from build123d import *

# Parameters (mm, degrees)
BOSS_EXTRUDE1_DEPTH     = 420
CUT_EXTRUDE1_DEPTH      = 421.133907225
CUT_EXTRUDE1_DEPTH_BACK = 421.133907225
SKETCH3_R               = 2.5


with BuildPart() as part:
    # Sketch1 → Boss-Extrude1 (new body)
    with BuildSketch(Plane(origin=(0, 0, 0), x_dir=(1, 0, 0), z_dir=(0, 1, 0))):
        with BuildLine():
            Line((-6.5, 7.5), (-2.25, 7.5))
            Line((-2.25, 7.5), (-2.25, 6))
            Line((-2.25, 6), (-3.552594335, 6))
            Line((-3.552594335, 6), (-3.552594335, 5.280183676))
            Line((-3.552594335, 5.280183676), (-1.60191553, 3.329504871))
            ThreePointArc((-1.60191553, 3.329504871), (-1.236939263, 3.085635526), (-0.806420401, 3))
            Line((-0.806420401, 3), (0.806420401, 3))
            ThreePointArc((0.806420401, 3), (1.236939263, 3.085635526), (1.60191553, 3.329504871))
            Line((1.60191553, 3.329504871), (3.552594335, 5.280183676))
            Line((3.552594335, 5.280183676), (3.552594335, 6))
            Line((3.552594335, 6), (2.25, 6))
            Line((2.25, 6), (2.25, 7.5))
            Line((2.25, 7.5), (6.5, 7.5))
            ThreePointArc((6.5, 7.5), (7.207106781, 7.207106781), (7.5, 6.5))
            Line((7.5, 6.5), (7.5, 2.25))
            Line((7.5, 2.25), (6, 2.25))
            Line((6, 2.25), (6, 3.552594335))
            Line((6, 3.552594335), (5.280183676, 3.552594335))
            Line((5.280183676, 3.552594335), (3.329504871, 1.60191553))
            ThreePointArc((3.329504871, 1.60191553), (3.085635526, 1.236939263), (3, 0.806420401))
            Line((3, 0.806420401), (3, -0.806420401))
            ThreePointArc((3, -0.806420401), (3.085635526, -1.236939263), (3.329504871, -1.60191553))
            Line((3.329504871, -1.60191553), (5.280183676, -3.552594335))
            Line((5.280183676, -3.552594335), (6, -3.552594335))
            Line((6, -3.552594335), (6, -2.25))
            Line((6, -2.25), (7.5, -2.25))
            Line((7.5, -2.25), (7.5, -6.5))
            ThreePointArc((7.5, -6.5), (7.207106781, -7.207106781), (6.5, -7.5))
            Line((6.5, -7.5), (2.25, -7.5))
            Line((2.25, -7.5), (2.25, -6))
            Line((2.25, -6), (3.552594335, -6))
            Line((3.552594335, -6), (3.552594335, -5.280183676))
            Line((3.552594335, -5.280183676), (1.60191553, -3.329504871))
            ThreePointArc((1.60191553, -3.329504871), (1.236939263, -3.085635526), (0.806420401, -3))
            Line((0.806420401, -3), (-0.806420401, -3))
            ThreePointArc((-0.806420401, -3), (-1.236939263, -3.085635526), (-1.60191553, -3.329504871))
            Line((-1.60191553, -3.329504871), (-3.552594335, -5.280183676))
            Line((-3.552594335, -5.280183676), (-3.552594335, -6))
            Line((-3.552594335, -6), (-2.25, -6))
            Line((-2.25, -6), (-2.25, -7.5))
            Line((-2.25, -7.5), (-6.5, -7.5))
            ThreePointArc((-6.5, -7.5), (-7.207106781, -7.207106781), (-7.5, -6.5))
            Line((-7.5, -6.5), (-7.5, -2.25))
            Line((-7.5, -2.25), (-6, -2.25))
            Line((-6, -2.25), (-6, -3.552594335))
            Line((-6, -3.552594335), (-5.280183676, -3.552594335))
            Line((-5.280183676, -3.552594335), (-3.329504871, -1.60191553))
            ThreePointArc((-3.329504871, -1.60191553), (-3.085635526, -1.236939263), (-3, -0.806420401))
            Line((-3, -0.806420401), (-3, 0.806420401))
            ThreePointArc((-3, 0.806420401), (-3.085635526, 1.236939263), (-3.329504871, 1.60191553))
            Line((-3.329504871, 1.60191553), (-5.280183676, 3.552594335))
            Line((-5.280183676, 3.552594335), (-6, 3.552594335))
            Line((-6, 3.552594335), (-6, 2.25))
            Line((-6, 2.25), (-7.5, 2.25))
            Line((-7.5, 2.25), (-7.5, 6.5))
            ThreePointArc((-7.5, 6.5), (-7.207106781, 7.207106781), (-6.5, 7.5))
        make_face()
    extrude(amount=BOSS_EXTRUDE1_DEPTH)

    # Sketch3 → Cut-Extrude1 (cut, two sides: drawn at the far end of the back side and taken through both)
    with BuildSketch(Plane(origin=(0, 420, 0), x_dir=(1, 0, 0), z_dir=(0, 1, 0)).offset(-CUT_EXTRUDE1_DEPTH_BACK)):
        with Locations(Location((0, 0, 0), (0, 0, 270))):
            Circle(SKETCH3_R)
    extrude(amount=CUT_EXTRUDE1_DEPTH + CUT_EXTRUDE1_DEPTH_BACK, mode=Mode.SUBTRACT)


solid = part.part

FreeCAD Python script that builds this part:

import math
import FreeCAD as App
import Part
import Sketcher

V = App.Vector
Q = App.Units.Quantity

doc = App.newDocument("Part")
params = doc.addObject("Spreadsheet::Sheet", "Params")
for row, (alias, value) in enumerate([
    ("sketch1_radius", "1 mm"),
    ("sketch1_width", "1.5 mm"),
    ("sketch1_width2", "4.25 mm"),
    ("pad1_length", "420 mm"),
    ("sketch2_diameter", "5 mm"),
], start=1):
    params.set(f"A{row}", alias)
    params.set(f"B{row}", "=" + value)
    params.setAlias(f"B{row}", alias)

body = doc.addObject("PartDesign::Body", "Body")

sketch1 = body.newObject("Sketcher::SketchObject", "Sketch")
sketch1.AttachmentSupport = (doc.getObject("XZ_Plane"), [""])
sketch1.MapMode = "FlatFace"
sketch1.addGeometry([
    Part.LineSegment(V(-2.25, -7.5, 0), V(-6.5, -7.5, 0)),
    Part.ArcOfCircle(Part.Circle(V(-6.5, -6.5, 0), V(0, 0, 1), 1), math.radians(-180), math.radians(-90)),
    Part.LineSegment(V(-7.5, -6.5, 0), V(-7.5, -2.25, 0)),
    Part.LineSegment(V(-7.5, -2.25, 0), V(-6, -2.25, 0)),
    Part.LineSegment(V(-6, -2.25, 0), V(-6, -3.552594, 0)),
    Part.LineSegment(V(-6, -3.552594, 0), V(-5.280184, -3.552594, 0)),
    Part.LineSegment(V(-5.280184, -3.552594, 0), V(-3.329505, -1.601916, 0)),
    Part.ArcOfCircle(Part.Circle(V(-4.125, -0.80642, 0), V(0, 0, 1), 1.125), math.radians(-45), math.radians(0)),
    Part.LineSegment(V(-3, -0.80642, 0), V(-3, 0.80642, 0)),
    Part.ArcOfCircle(Part.Circle(V(-4.125, 0.80642, 0), V(0, 0, 1), 1.125), math.radians(0), math.radians(45)),
    Part.LineSegment(V(-3.329505, 1.601916, 0), V(-5.280184, 3.552594, 0)),
    Part.LineSegment(V(-5.280184, 3.552594, 0), V(-6, 3.552594, 0)),
    Part.LineSegment(V(-6, 3.552594, 0), V(-6, 2.25, 0)),
    Part.LineSegment(V(-6, 2.25, 0), V(-7.5, 2.25, 0)),
    Part.LineSegment(V(-7.5, 2.25, 0), V(-7.5, 6.5, 0)),
    Part.ArcOfCircle(Part.Circle(V(-6.5, 6.5, 0), V(0, 0, 1), 1), math.radians(90), math.radians(180)),
    Part.LineSegment(V(-6.5, 7.5, 0), V(-2.25, 7.5, 0)),
    Part.LineSegment(V(-2.25, 7.5, 0), V(-2.25, 6, 0)),
    Part.LineSegment(V(-2.25, 6, 0), V(-3.552594, 6, 0)),
    Part.LineSegment(V(-3.552594, 6, 0), V(-3.552594, 5.280184, 0)),
    Part.LineSegment(V(-3.552594, 5.280184, 0), V(-1.601916, 3.329505, 0)),
    Part.ArcOfCircle(Part.Circle(V(-0.80642, 4.125, 0), V(0, 0, 1), 1.125), math.radians(-135), math.radians(-90)),
    Part.LineSegment(V(-0.80642, 3, 0), V(0.80642, 3, 0)),
    Part.ArcOfCircle(Part.Circle(V(0.80642, 4.125, 0), V(0, 0, 1), 1.125), math.radians(-90), math.radians(-45)),
    Part.LineSegment(V(1.601916, 3.329505, 0), V(3.552594, 5.280184, 0)),
    Part.LineSegment(V(3.552594, 5.280184, 0), V(3.552594, 6, 0)),
    Part.LineSegment(V(3.552594, 6, 0), V(2.25, 6, 0)),
    Part.LineSegment(V(2.25, 6, 0), V(2.25, 7.5, 0)),
    Part.LineSegment(V(2.25, 7.5, 0), V(6.5, 7.5, 0)),
    Part.ArcOfCircle(Part.Circle(V(6.5, 6.5, 0), V(0, 0, 1), 1), math.radians(0), math.radians(90)),
    Part.LineSegment(V(7.5, 6.5, 0), V(7.5, 2.25, 0)),
    Part.LineSegment(V(7.5, 2.25, 0), V(6, 2.25, 0)),
    Part.LineSegment(V(6, 2.25, 0), V(6, 3.552594, 0)),
    Part.LineSegment(V(6, 3.552594, 0), V(5.280184, 3.552594, 0)),
    Part.LineSegment(V(5.280184, 3.552594, 0), V(3.329505, 1.601916, 0)),
    Part.ArcOfCircle(Part.Circle(V(4.125, 0.80642, 0), V(0, 0, 1), 1.125), math.radians(135), math.radians(180)),
    Part.LineSegment(V(3, 0.80642, 0), V(3, -0.80642, 0)),
    Part.ArcOfCircle(Part.Circle(V(4.125, -0.80642, 0), V(0, 0, 1), 1.125), math.radians(180), math.radians(225)),
    Part.LineSegment(V(3.329505, -1.601916, 0), V(5.280184, -3.552594, 0)),
    Part.LineSegment(V(5.280184, -3.552594, 0), V(6, -3.552594, 0)),
    Part.LineSegment(V(6, -3.552594, 0), V(6, -2.25, 0)),
    Part.LineSegment(V(6, -2.25, 0), V(7.5, -2.25, 0)),
    Part.LineSegment(V(7.5, -2.25, 0), V(7.5, -6.5, 0)),
    Part.ArcOfCircle(Part.Circle(V(6.5, -6.5, 0), V(0, 0, 1), 1), math.radians(-90), math.radians(0)),
    Part.LineSegment(V(6.5, -7.5, 0), V(2.25, -7.5, 0)),
    Part.LineSegment(V(2.25, -7.5, 0), V(2.25, -6, 0)),
    Part.LineSegment(V(2.25, -6, 0), V(3.552594, -6, 0)),
    Part.LineSegment(V(3.552594, -6, 0), V(3.552594, -5.280184, 0)),
    Part.LineSegment(V(3.552594, -5.280184, 0), V(1.601916, -3.329505, 0)),
    Part.ArcOfCircle(Part.Circle(V(0.80642, -4.125, 0), V(0, 0, 1), 1.125), math.radians(45), math.radians(90)),
    Part.LineSegment(V(0.80642, -3, 0), V(-0.80642, -3, 0)),
    Part.ArcOfCircle(Part.Circle(V(-0.80642, -4.125, 0), V(0, 0, 1), 1.125), math.radians(90), math.radians(135)),
    Part.LineSegment(V(-1.601916, -3.329505, 0), V(-3.552594, -5.280184, 0)),
    Part.LineSegment(V(-3.552594, -5.280184, 0), V(-3.552594, -6, 0)),
    Part.LineSegment(V(-3.552594, -6, 0), V(-2.25, -6, 0)),
    Part.LineSegment(V(-2.25, -6, 0), V(-2.25, -7.5, 0)),
], False)
sketch1.addConstraint([
    Sketcher.Constraint("Tangent", 0, 2, 1, 2),
    Sketcher.Constraint("Tangent", 1, 1, 2, 1),
    Sketcher.Constraint("Coincident", 2, 2, 3, 1),
    Sketcher.Constraint("Coincident", 3, 2, 4, 1),
    Sketcher.Constraint("Coincident", 4, 2, 5, 1),
    Sketcher.Constraint("Coincident", 5, 2, 6, 1),
    Sketcher.Constraint("Tangent", 6, 2, 7, 1),
    Sketcher.Constraint("Tangent", 7, 2, 8, 1),
    Sketcher.Constraint("Tangent", 8, 2, 9, 1),
    Sketcher.Constraint("Tangent", 9, 2, 10, 1),
    Sketcher.Constraint("Coincident", 10, 2, 11, 1),
    Sketcher.Constraint("Coincident", 11, 2, 12, 1),
    Sketcher.Constraint("Coincident", 12, 2, 13, 1),
    Sketcher.Constraint("Coincident", 13, 2, 14, 1),
    Sketcher.Constraint("Tangent", 14, 2, 15, 2),
    Sketcher.Constraint("Tangent", 15, 1, 16, 1),
    Sketcher.Constraint("Coincident", 16, 2, 17, 1),
    Sketcher.Constraint("Coincident", 17, 2, 18, 1),
    Sketcher.Constraint("Coincident", 18, 2, 19, 1),
    Sketcher.Constraint("Coincident", 19, 2, 20, 1),
    Sketcher.Constraint("Tangent", 20, 2, 21, 1),
    Sketcher.Constraint("Tangent", 21, 2, 22, 1),
    Sketcher.Constraint("Tangent", 22, 2, 23, 1),
    Sketcher.Constraint("Tangent", 23, 2, 24, 1),
    Sketcher.Constraint("Coincident", 24, 2, 25, 1),
    Sketcher.Constraint("Coincident", 25, 2, 26, 1),
    Sketcher.Constraint("Coincident", 26, 2, 27, 1),
    Sketcher.Constraint("Coincident", 27, 2, 28, 1),
    Sketcher.Constraint("Tangent", 28, 2, 29, 2),
    Sketcher.Constraint("Tangent", 29, 1, 30, 1),
    Sketcher.Constraint("Coincident", 30, 2, 31, 1),
    Sketcher.Constraint("Coincident", 31, 2, 32, 1),
    Sketcher.Constraint("Coincident", 32, 2, 33, 1),
    Sketcher.Constraint("Coincident", 33, 2, 34, 1),
    Sketcher.Constraint("Tangent", 34, 2, 35, 1),
    Sketcher.Constraint("Tangent", 35, 2, 36, 1),
    Sketcher.Constraint("Tangent", 36, 2, 37, 1),
    Sketcher.Constraint("Tangent", 37, 2, 38, 1),
    Sketcher.Constraint("Coincident", 38, 2, 39, 1),
    Sketcher.Constraint("Coincident", 39, 2, 40, 1),
    Sketcher.Constraint("Coincident", 40, 2, 41, 1),
    Sketcher.Constraint("Coincident", 41, 2, 42, 1),
    Sketcher.Constraint("Tangent", 42, 2, 43, 2),
    Sketcher.Constraint("Tangent", 43, 1, 44, 1),
    Sketcher.Constraint("Coincident", 44, 2, 45, 1),
    Sketcher.Constraint("Coincident", 45, 2, 46, 1),
    Sketcher.Constraint("Coincident", 46, 2, 47, 1),
    Sketcher.Constraint("Coincident", 47, 2, 48, 1),
    Sketcher.Constraint("Tangent", 48, 2, 49, 1),
    Sketcher.Constraint("Tangent", 49, 2, 50, 1),
    Sketcher.Constraint("Tangent", 50, 2, 51, 1),
    Sketcher.Constraint("Tangent", 51, 2, 52, 1),
    Sketcher.Constraint("Coincident", 52, 2, 53, 1),
    Sketcher.Constraint("Coincident", 53, 2, 54, 1),
    Sketcher.Constraint("Coincident", 54, 2, 55, 1),
    Sketcher.Constraint("Coincident", 55, 2, 0, 1),
    Sketcher.Constraint("Horizontal", 0),
    Sketcher.Constraint("Vertical", 2),
    Sketcher.Constraint("Horizontal", 3),
    Sketcher.Constraint("Vertical", 4),
    Sketcher.Constraint("Horizontal", 5),
    Sketcher.Constraint("Vertical", 8),
    Sketcher.Constraint("Horizontal", 11),
    Sketcher.Constraint("Vertical", 12),
    Sketcher.Constraint("Horizontal", 13),
    Sketcher.Constraint("Vertical", 14),
    Sketcher.Constraint("Horizontal", 16),
    Sketcher.Constraint("Vertical", 17),
    Sketcher.Constraint("Horizontal", 18),
    Sketcher.Constraint("Vertical", 19),
    Sketcher.Constraint("Horizontal", 22),
    Sketcher.Constraint("Vertical", 25),
    Sketcher.Constraint("Horizontal", 26),
    Sketcher.Constraint("Vertical", 27),
    Sketcher.Constraint("Horizontal", 28),
    Sketcher.Constraint("Vertical", 30),
    Sketcher.Constraint("Horizontal", 31),
    Sketcher.Constraint("Vertical", 32),
    Sketcher.Constraint("Horizontal", 33),
    Sketcher.Constraint("Vertical", 36),
    Sketcher.Constraint("Horizontal", 39),
    Sketcher.Constraint("Vertical", 40),
    Sketcher.Constraint("Horizontal", 41),
    Sketcher.Constraint("Vertical", 42),
    Sketcher.Constraint("Horizontal", 44),
    Sketcher.Constraint("Vertical", 45),
    Sketcher.Constraint("Horizontal", 46),
    Sketcher.Constraint("Vertical", 47),
    Sketcher.Constraint("Horizontal", 50),
    Sketcher.Constraint("Vertical", 53),
    Sketcher.Constraint("Horizontal", 54),
    Sketcher.Constraint("Vertical", 55),
    Sketcher.Constraint("Equal", 7, 9),
    Sketcher.Constraint("Equal", 1, 15),
    Sketcher.Constraint("Equal", 9, 21),
    Sketcher.Constraint("Equal", 21, 23),
    Sketcher.Constraint("Equal", 15, 29),
    Sketcher.Constraint("Equal", 23, 35),
    Sketcher.Constraint("Equal", 35, 37),
    Sketcher.Constraint("Equal", 29, 43),
    Sketcher.Constraint("Equal", 37, 49),
    Sketcher.Constraint("Equal", 49, 51),
    Sketcher.Constraint("Symmetric", 1, 3, 29, 3, -1, 1),
    Sketcher.Constraint("Symmetric", 7, 3, 35, 3, -1, 1),
    Sketcher.Constraint("Symmetric", 15, 3, 43, 3, -1, 1),
    Sketcher.Constraint("Symmetric", 21, 3, 49, 3, -1, 1),
    Sketcher.Constraint("Symmetric", 3, 2, 31, 2, -1, 1),
    Sketcher.Constraint("Symmetric", 5, 2, 33, 2, -1, 1),
    Sketcher.Constraint("Symmetric", 9, 2, 37, 2, -1, 1),
    Sketcher.Constraint("Symmetric", 11, 2, 39, 2, -1, 1),
    Sketcher.Constraint("Symmetric", 17, 2, 45, 2, -1, 1),
    Sketcher.Constraint("Symmetric", 19, 2, 47, 2, -1, 1),
    Sketcher.Constraint("Symmetric", 23, 2, 51, 2, -1, 1),
    Sketcher.Constraint("Symmetric", 25, 2, 53, 2, -1, 1),
    Sketcher.Constraint("Symmetric", 15, 3, 29, 3, -2),
    Sketcher.Constraint("Symmetric", 20, 2, 23, 2, -2),
    Sketcher.Constraint("Symmetric", 18, 2, 25, 2, -2),
    Sketcher.Constraint("Symmetric", 12, 2, 31, 2, -2),
    Sketcher.Constraint("Symmetric", 10, 2, 33, 2, -2),
    Sketcher.Constraint("Perpendicular", 6, 10),
    Sketcher.Constraint("Parallel", 10, 20),
    Sketcher.Constraint("Perpendicular", 20, 24),
    Sketcher.Constraint("Horizontal", 3, 2, 40, 2),
    Sketcher.Constraint("Vertical", 27, 2, 44, 2),
    Sketcher.Constraint("Vertical", 17, 2, 54, 2),
    Sketcher.Constraint("Equal", 44, 2),
    Sketcher.Constraint("Equal", 54, 4),
    Sketcher.Constraint("Equal", 50, 8),
    Sketcher.Constraint("Equal", 41, 17),
    Sketcher.Constraint("Equal", 39, 19),
    Sketcher.Constraint("Equal", 10, 20),
    Sketcher.Constraint("Radius", 1, Q("1 mm")),
    Sketcher.Constraint("DistanceX", 3, 1, 3, 2, Q("1.5 mm")),
    Sketcher.Constraint("DistanceX", 3, 2, -1, 1, Q("6 mm")),
    Sketcher.Constraint("DistanceX", 7, 2, -1, 1, Q("3 mm")),
    Sketcher.Constraint("Radius", 7, Q("1.125 mm")),
    Sketcher.Constraint("DistanceX", 0, 2, 0, 1, Q("4.25 mm")),
    Sketcher.Constraint("DistanceX", 22, 1, 22, 2, Q("1.612841 mm")),
    Sketcher.Constraint("DistanceX", 5, 1, 5, 2, Q("0.719816 mm")),
])
sketch1.setExpression("Constraints[131]", "Params.sketch1_radius")
sketch1.setExpression("Constraints[132]", "Params.sketch1_width")
sketch1.setExpression("Constraints[136]", "Params.sketch1_width2")
pad1 = body.newObject("PartDesign::Pad", "Pad")
pad1.Profile = sketch1
pad1.setExpression("Length", "Params.pad1_length")
pad1.Reversed = True

sketch2 = body.newObject("Sketcher::SketchObject", "Sketch001")
sketch2.AttachmentSupport = (doc.getObject("XZ_Plane"), [""])
sketch2.MapMode = "FlatFace"
sketch2.AttachmentOffset = App.Placement(V(0, 0, -420), App.Rotation())
sketch2.addGeometry(Part.Circle(V(0, 0, 0), V(0, 0, 1), 2.5), False)
sketch2.addConstraint([
    Sketcher.Constraint("Coincident", 0, 3, -1, 1),
    Sketcher.Constraint("Diameter", 0, Q("5 mm")),
])
sketch2.setExpression("Constraints[1]", "Params.sketch2_diameter")
pocket1 = body.newObject("PartDesign::Pocket", "Pocket")
pocket1.Profile = sketch2
pocket1.Type = "ThroughAll"
pocket1.Midplane = True

doc.recompute()
